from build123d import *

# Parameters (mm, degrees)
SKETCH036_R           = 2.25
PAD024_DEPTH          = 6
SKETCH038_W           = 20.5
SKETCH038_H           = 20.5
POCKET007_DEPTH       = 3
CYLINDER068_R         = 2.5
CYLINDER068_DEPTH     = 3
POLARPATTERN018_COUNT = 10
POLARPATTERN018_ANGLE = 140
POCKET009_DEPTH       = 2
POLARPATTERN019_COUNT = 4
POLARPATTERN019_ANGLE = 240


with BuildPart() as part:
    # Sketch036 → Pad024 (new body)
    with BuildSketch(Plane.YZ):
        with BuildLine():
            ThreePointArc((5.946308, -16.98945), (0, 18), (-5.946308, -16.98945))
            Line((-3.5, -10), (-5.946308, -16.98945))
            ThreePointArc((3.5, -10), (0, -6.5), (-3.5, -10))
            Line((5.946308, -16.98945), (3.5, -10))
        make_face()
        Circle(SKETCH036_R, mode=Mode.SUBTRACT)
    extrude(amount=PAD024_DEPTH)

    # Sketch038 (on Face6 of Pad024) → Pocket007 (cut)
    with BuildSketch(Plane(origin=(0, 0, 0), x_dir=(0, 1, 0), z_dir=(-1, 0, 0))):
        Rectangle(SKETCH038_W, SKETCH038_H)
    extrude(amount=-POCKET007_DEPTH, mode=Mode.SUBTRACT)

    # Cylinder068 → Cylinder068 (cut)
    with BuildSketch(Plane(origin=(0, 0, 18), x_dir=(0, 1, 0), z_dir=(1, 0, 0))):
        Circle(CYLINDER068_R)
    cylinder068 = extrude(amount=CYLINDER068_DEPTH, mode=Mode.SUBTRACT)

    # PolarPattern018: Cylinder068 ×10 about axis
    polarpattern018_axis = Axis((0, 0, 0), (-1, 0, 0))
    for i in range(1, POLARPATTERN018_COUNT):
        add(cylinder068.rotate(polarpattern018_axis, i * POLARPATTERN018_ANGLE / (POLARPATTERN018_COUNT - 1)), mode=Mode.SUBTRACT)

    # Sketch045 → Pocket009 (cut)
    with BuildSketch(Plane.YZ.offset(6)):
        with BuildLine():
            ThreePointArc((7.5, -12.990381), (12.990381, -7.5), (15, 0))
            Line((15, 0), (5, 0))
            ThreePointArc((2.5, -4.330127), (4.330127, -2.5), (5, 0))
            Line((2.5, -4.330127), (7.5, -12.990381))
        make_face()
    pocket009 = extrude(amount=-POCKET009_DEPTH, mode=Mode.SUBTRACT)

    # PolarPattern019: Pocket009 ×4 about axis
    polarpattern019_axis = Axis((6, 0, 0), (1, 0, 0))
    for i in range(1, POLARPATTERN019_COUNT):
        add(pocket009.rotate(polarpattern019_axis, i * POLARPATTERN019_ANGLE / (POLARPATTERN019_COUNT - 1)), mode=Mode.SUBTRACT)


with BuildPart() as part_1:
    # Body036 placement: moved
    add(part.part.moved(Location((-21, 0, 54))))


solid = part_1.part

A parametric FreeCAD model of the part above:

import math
import FreeCAD as App
import Part
import Sketcher

V = App.Vector
Q = App.Units.Quantity

doc = App.newDocument("Part")
params = doc.addObject("Spreadsheet::Sheet", "Params")
for row, (alias, value) in enumerate([
    ("sketch1_radius", "18 mm"),
    ("sketch1_diameter", "4.5 mm"),
    ("sketch1_radius2", "3.5 mm"),
    ("pad1_length", "6 mm"),
    ("sketch2_width", "20.5 mm"),
    ("pocket1_length", "3 mm"),
    ("sketch3_diameter", "5 mm"),
    ("pocket2_length", "3 mm"),
    ("sketch4_radius", "15 mm"),
    ("sketch4_radius2", "5 mm"),
    ("pocket3_length", "2 mm"),
], start=1):
    params.set(f"A{row}", alias)
    params.set(f"B{row}", "=" + value)
    params.setAlias(f"B{row}", alias)

body = doc.addObject("PartDesign::Body", "Body")

# Sketch on YZ plane
sketch1 = doc.addObject("Sketcher::SketchObject", "Sketch")
body.addObject(sketch1)
sketch1.AttachmentSupport = (doc.YZ_Plane, [""])
sketch1.MapMode = "FlatFace"
sketch1.addGeometry([
    Part.ArcOfCircle(Part.Circle(V(0, 0, 0), V(0, 0, 1), 18), math.radians(-70.709952), math.radians(250.709952)),  # 0
    Part.LineSegment(V(-5.946308, -16.98945, 0), V(-3.5, -10, 0)),  # 1
    Part.ArcOfCircle(Part.Circle(V(0, -10, 0), V(0, 0, 1), 3.5), math.radians(0), math.radians(180)),  # 2
    Part.LineSegment(V(3.5, -10, 0), V(5.946308, -16.98945, 0)),  # 3
    Part.Circle(V(0, 0, 0), V(0, 0, 1), 2.25),  # 4
], False)
sketch1.addConstraint([
    Sketcher.Constraint("Coincident", 0, 2, 1, 1),
    Sketcher.Constraint("Coincident", 1, 2, 2, 2),
    Sketcher.Constraint("Coincident", 2, 1, 3, 1),
    Sketcher.Constraint("Coincident", 3, 2, 0, 1),
    Sketcher.Constraint("Coincident", 0, 3, -1, 1),
    Sketcher.Constraint("Coincident", 4, 3, -1, 1),
    Sketcher.Constraint("Symmetric", 1, 2, 2, 1, -2),
    Sketcher.Constraint("Horizontal", 2, 3, 1, 2),
    Sketcher.Constraint("Horizontal", 0, 2, 3, 2),
    Sketcher.Constraint("Radius", 0, 18.0),
    Sketcher.Constraint("Diameter", 4, 4.5),
    Sketcher.Constraint("Radius", 2, 3.5),
    Sketcher.Constraint("DistanceY", 2, 3, -1, 1, 10.0),
    Sketcher.Constraint("DistanceY", 0, 2, -1, 1, 16.98945),
])
sketch1.setExpression("Constraints[9]", "Params.sketch1_radius")
sketch1.setExpression("Constraints[10]", "Params.sketch1_diameter")
sketch1.setExpression("Constraints[11]", "Params.sketch1_radius2")
pad1 = doc.addObject("PartDesign::Pad", "Pad")
body.addObject(pad1)
pad1.Profile = sketch1
pad1.setExpression("Length", "Params.pad1_length")

# Sketch on YZ plane
sketch2 = doc.addObject("Sketcher::SketchObject", "Sketch001")
body.addObject(sketch2)
sketch2.AttachmentSupport = (doc.YZ_Plane, [""])
sketch2.MapMode = "FlatFace"
sketch2.addGeometry([
    Part.LineSegment(V(-10.25, -10.25, 0), V(-10.25, 10.25, 0)),
    Part.LineSegment(V(-10.25, 10.25, 0), V(10.25, 10.25, 0)),
    Part.LineSegment(V(10.25, 10.25, 0), V(10.25, -10.25, 0)),
    Part.LineSegment(V(10.25, -10.25, 0), V(-10.25, -10.25, 0)),
], False)
sketch2.addConstraint([
    Sketcher.Constraint("Coincident", 0, 2, 1, 1),
    Sketcher.Constraint("Coincident", 1, 2, 2, 1),
    Sketcher.Constraint("Coincident", 2, 2, 3, 1),
    Sketcher.Constraint("Coincident", 3, 2, 0, 1),
    Sketcher.Constraint("Vertical", 0),
    Sketcher.Constraint("Horizontal", 1),
    Sketcher.Constraint("Vertical", 2),
    Sketcher.Constraint("Horizontal", 3),
    Sketcher.Constraint("Symmetric", 0, 2, 2, 2, -1, 1),
    Sketcher.Constraint("Equal", 3, 0),
    Sketcher.Constraint("DistanceX", 1, 1, 1, 2, 20.5),
])
sketch2.setExpression("Constraints[10]", "Params.sketch2_width")
pocket1 = doc.addObject("PartDesign::Pocket", "Pocket")
body.addObject(pocket1)
pocket1.Profile = sketch2
pocket1.setExpression("Length", "Params.pocket1_length")
pocket1.Reversed = True

# Sketch on YZ plane
sketch3 = doc.addObject("Sketcher::SketchObject", "Sketch002")
body.addObject(sketch3)
sketch3.AttachmentSupport = (doc.YZ_Plane, [""])
sketch3.MapMode = "FlatFace"
sketch3.addGeometry(Part.Circle(V(0, 18, 0), V(0, 0, 1), 2.5), False)
sketch3.addConstraint([
    Sketcher.Constraint("PointOnObject", 0, 3, -2),
    Sketcher.Constraint("Diameter", 0, 5.0),
    Sketcher.Constraint("DistanceY", -1, 1, 0, 3, 18.0),
])
sketch3.setExpression("Constraints[1]", "Params.sketch3_diameter")
pocket2 = doc.addObject("PartDesign::Pocket", "Pocket001")
body.addObject(pocket2)
pocket2.Profile = sketch3
pocket2.setExpression("Length", "Params.pocket2_length")
pocket2.Reversed = True
doc.recompute()

polarpattern = doc.addObject("PartDesign::PolarPattern", "PolarPattern")
body.addObject(polarpattern)
polarpattern.Originals = [pocket2]
polarpattern.Axis = (doc.X_Axis, [""])
polarpattern.Angle = 140
polarpattern.Occurrences = 10
polarpattern.Reversed = True
body.Tip = polarpattern

# Sketch on YZ plane
sketch4 = doc.addObject("Sketcher::SketchObject", "Sketch003")
body.addObject(sketch4)
sketch4.AttachmentSupport = (doc.YZ_Plane, [""])
sketch4.MapMode = "FlatFace"
sketch4.AttachmentOffset = App.Placement(V(0, 0, 6), App.Rotation())
sketch4.addGeometry([
    Part.ArcOfCircle(Part.Circle(V(0, 0, 0), V(0, 0, 1), 15), math.radians(-60), math.radians(-0.000001)),
    Part.LineSegment(V(15, 0, 0), V(5, 0, 0)),
    Part.ArcOfCircle(Part.Circle(V(0, 0, 0), V(0, 0, 1), 5), math.radians(-60), math.radians(-0.000001)),
    Part.LineSegment(V(2.5, -4.330127, 0), V(7.5, -12.990381, 0)),
], False)
sketch4.addConstraint([
    Sketcher.Constraint("Coincident", 0, 2, 1, 1),
    Sketcher.Constraint("Coincident", 1, 2, 2, 2),
    Sketcher.Constraint("Coincident", 2, 1, 3, 1),
    Sketcher.Constraint("Coincident", 3, 2, 0, 1),
    Sketcher.Constraint("Horizontal", 1),
    Sketcher.Constraint("Coincident", 0, 3, -1, 1),
    Sketcher.Constraint("Coincident", 2, 3, -1, 1),
    Sketcher.Constraint("PointOnObject", 0, 2, -1),
    Sketcher.Constraint("Radius", 0, 15.0),
    Sketcher.Constraint("Radius", 2, 5.0),
    Sketcher.Constraint("Angle", 3, Q("-60 deg")),
    Sketcher.Constraint("DistanceX", -1, 1, 2, 1, 2.5),
])
sketch4.setExpression("Constraints[8]", "Params.sketch4_radius")
sketch4.setExpression("Constraints[9]", "Params.sketch4_radius2")
pocket3 = doc.addObject("PartDesign::Pocket", "Pocket002")
body.addObject(pocket3)
pocket3.Profile = sketch4
pocket3.setExpression("Length", "Params.pocket3_length")
doc.recompute()

polarpattern2 = doc.addObject("PartDesign::PolarPattern", "PolarPattern001")
body.addObject(polarpattern2)
polarpattern2.Originals = [pocket3]
polarpattern2.Axis = (doc.X_Axis, [""])
polarpattern2.Angle = 240
polarpattern2.Occurrences = 4
body.Tip = polarpattern2
body2 = doc.addObject("PartDesign::Body", "Body001")
doc.recompute()

body.Placement = App.Placement(V(-21, 0, 54), App.Rotation(V(0, 0, 1), 0))
boolean = doc.addObject("PartDesign::Boolean", "Boolean")
body2.addObject(boolean)
boolean.Type = "Fuse"
boolean.addObjects([body])

doc.recompute()
